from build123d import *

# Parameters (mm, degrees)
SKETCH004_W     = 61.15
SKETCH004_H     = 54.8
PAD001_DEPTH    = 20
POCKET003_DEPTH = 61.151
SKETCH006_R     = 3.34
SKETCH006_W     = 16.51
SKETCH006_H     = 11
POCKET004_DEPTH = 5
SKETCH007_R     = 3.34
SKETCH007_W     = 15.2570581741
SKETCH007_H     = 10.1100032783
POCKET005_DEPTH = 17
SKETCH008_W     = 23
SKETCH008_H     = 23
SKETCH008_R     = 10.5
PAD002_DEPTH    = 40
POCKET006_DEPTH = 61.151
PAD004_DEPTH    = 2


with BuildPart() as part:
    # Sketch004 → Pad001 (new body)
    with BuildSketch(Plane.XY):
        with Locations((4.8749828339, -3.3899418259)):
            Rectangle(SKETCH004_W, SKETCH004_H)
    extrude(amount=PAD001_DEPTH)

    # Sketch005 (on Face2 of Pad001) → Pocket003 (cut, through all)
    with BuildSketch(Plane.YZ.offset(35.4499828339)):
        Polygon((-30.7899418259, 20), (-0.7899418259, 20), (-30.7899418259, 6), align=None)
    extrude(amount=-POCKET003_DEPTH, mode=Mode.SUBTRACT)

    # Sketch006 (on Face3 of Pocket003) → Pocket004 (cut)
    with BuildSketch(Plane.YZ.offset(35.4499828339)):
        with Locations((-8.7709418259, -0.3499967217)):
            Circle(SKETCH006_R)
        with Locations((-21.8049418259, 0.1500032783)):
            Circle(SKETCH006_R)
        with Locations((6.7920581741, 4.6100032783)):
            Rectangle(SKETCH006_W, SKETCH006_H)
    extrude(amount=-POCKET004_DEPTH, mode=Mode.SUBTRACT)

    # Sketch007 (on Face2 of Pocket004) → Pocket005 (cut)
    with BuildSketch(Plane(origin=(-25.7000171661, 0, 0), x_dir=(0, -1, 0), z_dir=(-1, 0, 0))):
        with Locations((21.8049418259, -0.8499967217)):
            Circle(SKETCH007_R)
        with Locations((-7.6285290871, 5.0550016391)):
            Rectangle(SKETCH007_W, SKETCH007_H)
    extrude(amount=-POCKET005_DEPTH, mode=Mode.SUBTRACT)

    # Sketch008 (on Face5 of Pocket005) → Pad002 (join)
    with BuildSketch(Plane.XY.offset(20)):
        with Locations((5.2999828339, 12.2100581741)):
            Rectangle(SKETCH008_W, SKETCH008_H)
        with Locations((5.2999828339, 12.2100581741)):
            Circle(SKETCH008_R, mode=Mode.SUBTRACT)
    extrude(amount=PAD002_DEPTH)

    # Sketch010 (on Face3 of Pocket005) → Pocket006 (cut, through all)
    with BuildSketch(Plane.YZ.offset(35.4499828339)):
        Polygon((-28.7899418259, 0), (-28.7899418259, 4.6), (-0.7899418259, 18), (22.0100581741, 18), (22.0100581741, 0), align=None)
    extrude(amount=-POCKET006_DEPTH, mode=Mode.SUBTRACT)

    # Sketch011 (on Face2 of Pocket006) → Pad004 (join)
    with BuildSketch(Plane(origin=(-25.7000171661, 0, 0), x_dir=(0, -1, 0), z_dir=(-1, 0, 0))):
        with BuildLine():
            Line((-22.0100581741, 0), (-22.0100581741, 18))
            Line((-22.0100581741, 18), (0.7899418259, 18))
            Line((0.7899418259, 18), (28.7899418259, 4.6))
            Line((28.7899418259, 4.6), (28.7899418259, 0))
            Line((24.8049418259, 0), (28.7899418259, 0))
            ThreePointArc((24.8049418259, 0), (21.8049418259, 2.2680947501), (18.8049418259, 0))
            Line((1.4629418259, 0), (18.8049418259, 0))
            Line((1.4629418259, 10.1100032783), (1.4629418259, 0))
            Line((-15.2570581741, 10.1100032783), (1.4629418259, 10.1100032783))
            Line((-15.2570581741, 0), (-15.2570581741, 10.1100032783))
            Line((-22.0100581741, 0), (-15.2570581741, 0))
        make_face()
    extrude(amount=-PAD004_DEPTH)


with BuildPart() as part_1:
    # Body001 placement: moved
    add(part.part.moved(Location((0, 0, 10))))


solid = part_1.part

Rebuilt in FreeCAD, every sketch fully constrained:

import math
import FreeCAD as App
import Part
import Sketcher

V = App.Vector
Q = App.Units.Quantity


def add_polygon(sketch, points):
    """Adds a closed chain of lines whose ends are joined by coincident constraints."""
    first, n = sketch.GeometryCount, len(points)
    for a, b in zip(points, points[1:] + points[:1]):
        sketch.addGeometry(Part.LineSegment(App.Vector(*a, 0), App.Vector(*b, 0)), False)
    for i in range(n):
        sketch.addConstraint(Sketcher.Constraint("Coincident", first + i, 2, first + (i + 1) % n, 1))

doc = App.newDocument("Part")
body = doc.addObject("PartDesign::Body", "Body")

# Sketch on XY plane
sketch1 = body.newObject("Sketcher::SketchObject", "Sketch")
sketch1.AttachmentSupport = (doc.getObject("XY_Plane"), [""])
sketch1.MapMode = "FlatFace"
add_polygon(sketch1, [(-26, 24), (-26, -31), (35, -31), (35, 24)])  # lines 0-3
sketch1.addConstraint([
    Sketcher.Constraint("Vertical", 0),
    Sketcher.Constraint("Horizontal", 1),
    Sketcher.Constraint("Vertical", 2),
    Sketcher.Constraint("Horizontal", 3),
    Sketcher.Constraint("DistanceY", 0, 2, 0, 1, Q("54.8 mm")),
    Sketcher.Constraint("DistanceX", 1, 1, 1, 2, Q("61.15 mm")),
    Sketcher.Constraint("DistanceY", 0, 2, -1, 1, Q("30.789942 mm")),
    Sketcher.Constraint("DistanceX", 0, 2, -1, 1, Q("25.700017 mm")),
])
pad1 = body.newObject("PartDesign::Pad", "Pad")
pad1.Profile = sketch1
pad1.Length = 20

# Sketch on YZ plane
sketch2 = body.newObject("Sketcher::SketchObject", "Sketch001")
sketch2.AttachmentSupport = (doc.getObject("YZ_Plane"), [""])
sketch2.MapMode = "FlatFace"
sketch2.AttachmentOffset = App.Placement(V(0, 0, 35.449983), App.Rotation())
add_polygon(sketch2, [(-1, 20), (-31, 20), (-31, 6)])  # lines 0-2
sketch2.addConstraint([
    Sketcher.Constraint("Horizontal", 0),
    Sketcher.Constraint("Vertical", 1),
    Sketcher.Constraint("DistanceX", 0, 2, 0, 1, Q("30 mm")),
    Sketcher.Constraint("DistanceY", 1, 2, 1, 1, Q("14 mm")),
    Sketcher.Constraint("DistanceY", -1, 1, 0, 2, Q("20 mm")),
    Sketcher.Constraint("DistanceX", 0, 2, -1, 1, Q("30.789942 mm")),
])
pocket1 = body.newObject("PartDesign::Pocket", "Pocket")
pocket1.Profile = sketch2
pocket1.Type = "ThroughAll"

# Sketch on YZ plane
sketch3 = body.newObject("Sketcher::SketchObject", "Sketch002")
sketch3.AttachmentSupport = (doc.getObject("YZ_Plane"), [""])
sketch3.MapMode = "FlatFace"
sketch3.AttachmentOffset = App.Placement(V(0, 0, 35.449983), App.Rotation())
sketch3.addGeometry(Part.Circle(V(-8.8, -0.3, 0), V(0, 0, 1), 3.3), False)  # 0
sketch3.addGeometry(Part.Circle(V(-21.8, 0.2, 0), V(0, 0, 1), 3.3), False)  # 1
add_polygon(sketch3, [(-1.5, 10.1), (-1.5, -0.9), (15, -0.9), (15, 10.1)])  # lines 2-5
sketch3.addConstraint([
    Sketcher.Constraint("Vertical", 2),
    Sketcher.Constraint("Horizontal", 3),
    Sketcher.Constraint("Vertical", 4),
    Sketcher.Constraint("Horizontal", 5),
    Sketcher.Constraint("Equal", 0, 1),
    Sketcher.Constraint("Diameter", 0, Q("6.68 mm")),
    Sketcher.Constraint("DistanceY", 2, 2, 2, 1, Q("11 mm")),
    Sketcher.Constraint("DistanceX", 3, 1, 3, 2, Q("16.51 mm")),
    Sketcher.Constraint("DistanceY", 0, 3, 1, 3, Q("0.5 mm")),
    Sketcher.Constraint("DistanceY", 2, 2, 0, 3, Q("0.54 mm")),
    Sketcher.Constraint("DistanceX", 1, 3, 0, 3, Q("13.034 mm")),
    Sketcher.Constraint("DistanceX", 0, 3, 2, 2, Q("7.308 mm")),
    Sketcher.Constraint("DistanceX", 0, 3, -1, 1, Q("8.770942 mm")),
    Sketcher.Constraint("DistanceY", 0, 3, -1, 1, Q("0.349997 mm")),
])
pocket2 = body.newObject("PartDesign::Pocket", "Pocket001")
pocket2.Profile = sketch3
pocket2.Length = 5

# Sketch on YZ plane
sketch4 = body.newObject("Sketcher::SketchObject", "Sketch003")
sketch4.AttachmentSupport = (doc.getObject("YZ_Plane"), [""])
sketch4.MapMode = "FlatFace"
sketch4.AttachmentOffset = App.Placement(V(0, 0, -25.700017), App.Rotation())
sketch4.addGeometry(Part.Circle(V(-21.8, -0.8, 0), V(0, 0, 1), 3.3), False)  # 0
add_polygon(sketch4, [(15.3, 10.1), (15.3, 0), (0, 0), (0, 10.1)])  # lines 1-4
sketch4.addConstraint([
    Sketcher.Constraint("Vertical", 1),
    Sketcher.Constraint("Horizontal", 2),
    Sketcher.Constraint("Vertical", 3),
    Sketcher.Constraint("Horizontal", 4),
    Sketcher.Constraint("Coincident", 2, 2, -1, 1),
    Sketcher.Constraint("Diameter", 0, Q("6.68 mm")),
    Sketcher.Constraint("DistanceY", 0, 3, 3, 2, Q("10.96 mm")),
    Sketcher.Constraint("DistanceX", 0, 3, 1, 2, Q("37.062 mm")),
    Sketcher.Constraint("DistanceX", 2, 2, 2, 1, Q("15.257058 mm")),
    Sketcher.Constraint("DistanceY", 1, 2, 1, 1, Q("10.110003 mm")),
])
pocket3 = body.newObject("PartDesign::Pocket", "Pocket002")
pocket3.Profile = sketch4
pocket3.Length = 17
pocket3.Reversed = True

# Sketch on XY plane
sketch5 = body.newObject("Sketcher::SketchObject", "Sketch004")
sketch5.AttachmentSupport = (doc.getObject("XY_Plane"), [""])
sketch5.MapMode = "FlatFace"
sketch5.AttachmentOffset = App.Placement(V(0, 0, 20), App.Rotation())
add_polygon(sketch5, [(-6, 24), (-6, 1), (17, 1), (17, 24)])  # lines 0-3
sketch5.addGeometry(Part.Circle(V(5, 12, 0), V(0, 0, 1), 10), False)  # 4
sketch5.addConstraint([
    Sketcher.Constraint("Vertical", 0),
    Sketcher.Constraint("Horizontal", 1),
    Sketcher.Constraint("Vertical", 2),
    Sketcher.Constraint("Horizontal", 3),
    Sketcher.Constraint("Equal", 3, 0),
    Sketcher.Constraint("Diameter", 4, Q("21 mm")),
    Sketcher.Constraint("DistanceX", 1, 1, 1, 2, Q("23 mm")),
    Sketcher.Constraint("DistanceX", 0, 2, 4, 3, Q("11.5 mm")),
    Sketcher.Constraint("DistanceY", 0, 2, 4, 3, Q("11.5 mm")),
    Sketcher.Constraint("DistanceY", -1, 1, 4, 3, Q("12.210058 mm")),
    Sketcher.Constraint("DistanceX", -1, 1, 4, 3, Q("5.299983 mm")),
])
pad2 = body.newObject("PartDesign::Pad", "Pad001")
pad2.Profile = sketch5
pad2.Length = 40

# Sketch on YZ plane
sketch6 = body.newObject("Sketcher::SketchObject", "Sketch005")
sketch6.AttachmentSupport = (doc.getObject("YZ_Plane"), [""])
sketch6.MapMode = "FlatFace"
sketch6.AttachmentOffset = App.Placement(V(0, 0, 35.449983), App.Rotation())
add_polygon(sketch6, [(-28.8, 4.6), (-28.8, 0), (22, 0), (22, 18), (-0.8, 18)])  # lines 0-4
sketch6.addConstraint([
    Sketcher.Constraint("Vertical", 0),
    Sketcher.Constraint("Horizontal", 1),
    Sketcher.Constraint("Vertical", 2),
    Sketcher.Constraint("Horizontal", 3),
    Sketcher.Constraint("PointOnObject", 0, 2, -1),
    Sketcher.Constraint("DistanceY", 2, 1, 2, 2, Q("18 mm")),
    Sketcher.Constraint("DistanceX", 1, 1, 1, 2, Q("50.8 mm")),
    Sketcher.Constraint("DistanceX", 3, 2, 3, 1, Q("22.8 mm")),
    Sketcher.Constraint("DistanceY", 0, 2, 0, 1, Q("4.6 mm")),
    Sketcher.Constraint("DistanceX", 0, 2, -1, 1, Q("28.789942 mm")),
])
pocket4 = body.newObject("PartDesign::Pocket", "Pocket003")
pocket4.Profile = sketch6
pocket4.Type = "ThroughAll"

# Sketch on YZ plane
sketch7 = body.newObject("Sketcher::SketchObject", "Sketch006")
sketch7.AttachmentSupport = (doc.getObject("YZ_Plane"), [""])
sketch7.MapMode = "FlatFace"
sketch7.AttachmentOffset = App.Placement(V(0, 0, -25.700017), App.Rotation())
sketch7.addGeometry([
    Part.LineSegment(V(22, 18, 0), V(22, 0, 0)),  # 0
    Part.LineSegment(V(22, 0, 0), V(15.3, 0, 0)),  # 1
    Part.LineSegment(V(15.3, 0, 0), V(15.3, 10.1, 0)),  # 2
    Part.LineSegment(V(15.3, 10.1, 0), V(-1.5, 10.1, 0)),  # 3
    Part.LineSegment(V(-1.5, 10.1, 0), V(-1.5, 0, 0)),  # 4
    Part.LineSegment(V(-1.5, 0, 0), V(-18.8, 0, 0)),  # 5
    Part.ArcOfCircle(Part.Circle(V(-21.8, -0.8, 0), V(0, 0, 1), 3.1), math.radians(16), math.radians(164)),  # 6
    Part.LineSegment(V(-24.8, 0, 0), V(-28.8, 0, 0)),  # 7
    Part.LineSegment(V(-28.8, 0, 0), V(-28.8, 4.6, 0)),  # 8
    Part.LineSegment(V(-28.8, 4.6, 0), V(-0.8, 18, 0)),  # 9
    Part.LineSegment(V(-0.8, 18, 0), V(22, 18, 0)),  # 10
], False)
sketch7.addConstraint([
    Sketcher.Constraint("Coincident", 0, 2, 1, 1),
    Sketcher.Constraint("Coincident", 1, 2, 2, 1),
    Sketcher.Constraint("Coincident", 2, 2, 3, 1),
    Sketcher.Constraint("Coincident", 3, 2, 4, 1),
    Sketcher.Constraint("Coincident", 4, 2, 5, 1),
    Sketcher.Constraint("Coincident", 5, 2, 6, 1),
    Sketcher.Constraint("Coincident", 6, 2, 7, 1),
    Sketcher.Constraint("Coincident", 7, 2, 8, 1),
    Sketcher.Constraint("Coincident", 8, 2, 9, 1),
    Sketcher.Constraint("Coincident", 9, 2, 10, 1),
    Sketcher.Constraint("Coincident", 10, 2, 0, 1),
    Sketcher.Constraint("Vertical", 0),
    Sketcher.Constraint("Horizontal", 1),
    Sketcher.Constraint("Vertical", 2),
    Sketcher.Constraint("Horizontal", 3),
    Sketcher.Constraint("Vertical", 4),
    Sketcher.Constraint("Horizontal", 5),
    Sketcher.Constraint("Horizontal", 7),
    Sketcher.Constraint("Vertical", 8),
    Sketcher.Constraint("Horizontal", 10),
    Sketcher.Constraint("PointOnObject", 0, 2, -1),
    Sketcher.Constraint("PointOnObject", 4, 2, -1),
    Sketcher.Constraint("PointOnObject", 6, 2, -1),
    Sketcher.Constraint("DistanceY", 0, 2, 0, 1, Q("18 mm")),
    Sketcher.Constraint("DistanceX", 10, 1, 10, 2, Q("22.8 mm")),
    Sketcher.Constraint("DistanceY", 8, 1, 8, 2, Q("4.6 mm")),
    Sketcher.Constraint("DistanceX", 6, 3, 5, 2, Q("3 mm")),
    Sketcher.Constraint("DistanceX", 3, 2, 3, 1, Q("16.72 mm")),
    Sketcher.Constraint("DistanceX", 1, 2, 1, 1, Q("6.753 mm")),
    Sketcher.Constraint("DistanceX", 5, 2, 5, 1, Q("17.342 mm")),
    Sketcher.Constraint("DistanceX", 7, 2, 7, 1, Q("3.985 mm")),
    Sketcher.Constraint("Radius", 6, Q("3.118091 mm")),
    Sketcher.Constraint("DistanceY", 6, 3, 2, 2, Q("10.96 mm")),
    Sketcher.Constraint("DistanceX", 6, 3, -1, 1, Q("21.804942 mm")),
])
pad3 = body.newObject("PartDesign::Pad", "Pad002")
pad3.Profile = sketch7
pad3.Length = 2
body2 = doc.addObject("PartDesign::Body", "Body001")
doc.recompute()

body.Placement = App.Placement(V(0, 0, 10), App.Rotation(V(0, 0, 1), 0))
boolean = body2.newObject("PartDesign::Boolean", "Boolean")
boolean.Type = "Fuse"
boolean.addObjects([body])

doc.recompute()
